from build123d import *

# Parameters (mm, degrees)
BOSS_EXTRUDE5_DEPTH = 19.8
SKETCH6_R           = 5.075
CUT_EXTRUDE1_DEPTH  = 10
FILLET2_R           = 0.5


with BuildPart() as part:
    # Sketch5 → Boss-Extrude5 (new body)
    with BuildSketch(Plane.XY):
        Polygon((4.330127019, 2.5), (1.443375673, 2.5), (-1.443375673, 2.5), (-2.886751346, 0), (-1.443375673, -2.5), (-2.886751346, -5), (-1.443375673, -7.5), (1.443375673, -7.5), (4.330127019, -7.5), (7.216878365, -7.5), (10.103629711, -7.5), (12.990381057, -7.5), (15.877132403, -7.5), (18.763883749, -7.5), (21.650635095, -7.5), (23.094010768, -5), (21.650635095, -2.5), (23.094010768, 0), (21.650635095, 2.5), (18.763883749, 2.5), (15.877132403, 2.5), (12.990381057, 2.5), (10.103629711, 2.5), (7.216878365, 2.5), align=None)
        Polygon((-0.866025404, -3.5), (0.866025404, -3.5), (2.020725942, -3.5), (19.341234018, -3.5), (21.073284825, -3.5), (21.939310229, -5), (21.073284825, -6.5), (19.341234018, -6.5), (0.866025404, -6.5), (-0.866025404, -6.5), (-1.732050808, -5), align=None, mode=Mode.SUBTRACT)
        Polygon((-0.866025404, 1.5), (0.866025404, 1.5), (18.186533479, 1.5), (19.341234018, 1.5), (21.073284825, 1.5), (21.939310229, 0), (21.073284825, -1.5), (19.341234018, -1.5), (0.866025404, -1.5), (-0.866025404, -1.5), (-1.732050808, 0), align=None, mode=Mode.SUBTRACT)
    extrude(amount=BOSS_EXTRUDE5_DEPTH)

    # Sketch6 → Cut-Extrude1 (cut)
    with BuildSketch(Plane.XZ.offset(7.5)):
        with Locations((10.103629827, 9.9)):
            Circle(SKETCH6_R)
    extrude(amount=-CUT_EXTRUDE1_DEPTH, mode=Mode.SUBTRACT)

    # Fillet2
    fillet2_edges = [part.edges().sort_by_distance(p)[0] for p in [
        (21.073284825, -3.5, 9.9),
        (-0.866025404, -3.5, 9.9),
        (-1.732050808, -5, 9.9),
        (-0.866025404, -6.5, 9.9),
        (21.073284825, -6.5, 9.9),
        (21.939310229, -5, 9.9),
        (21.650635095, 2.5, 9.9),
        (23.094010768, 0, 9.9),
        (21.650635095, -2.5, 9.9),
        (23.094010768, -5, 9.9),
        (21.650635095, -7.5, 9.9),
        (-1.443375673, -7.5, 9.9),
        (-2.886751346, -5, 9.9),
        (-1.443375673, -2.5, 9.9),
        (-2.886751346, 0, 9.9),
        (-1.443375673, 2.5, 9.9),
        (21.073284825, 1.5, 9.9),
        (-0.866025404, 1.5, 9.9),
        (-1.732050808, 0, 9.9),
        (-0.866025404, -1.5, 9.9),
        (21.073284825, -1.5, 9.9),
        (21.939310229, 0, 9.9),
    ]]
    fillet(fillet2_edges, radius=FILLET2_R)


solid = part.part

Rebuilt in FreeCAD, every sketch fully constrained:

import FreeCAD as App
import Part
import Sketcher
Q = App.Units.Quantity


def edges_at(feature, points):
    """Names of the edges that pass closest to the given points."""
    edges = feature.Shape.Edges
    near = lambda p: min(range(len(edges)), key=lambda i: edges[i].distToShape(Part.Vertex(*p))[0])
    return sorted({f"Edge{near(p) + 1}" for p in points})


def add_polygon(sketch, points):
    """Adds a closed chain of lines whose ends are joined by coincident constraints."""
    first, n = sketch.GeometryCount, len(points)
    for a, b in zip(points, points[1:] + points[:1]):
        sketch.addGeometry(Part.LineSegment(App.Vector(*a, 0), App.Vector(*b, 0)), False)
    for i in range(n):
        sketch.addConstraint(Sketcher.Constraint("Coincident", first + i, 2, first + (i + 1) % n, 1))

doc = App.newDocument("Part")
body = doc.addObject("PartDesign::Body", "Body")

sketch1 = body.newObject("Sketcher::SketchObject", "Sketch")
sketch1.AttachmentSupport = (doc.getObject("XY_Plane"), [""])
sketch1.MapMode = "FlatFace"
add_polygon(sketch1, [(-1.443376, 2.5), (-2.886751, 0), (-1.443376, -2.5), (-2.886751, -5), (-1.443376, -7.5), (21.650635, -7.5), (23.094011, -5), (21.650635, -2.5), (23.094011, 0), (21.650635, 2.5)])
add_polygon(sketch1, [(-1.732051, -5), (-0.866025, -3.5), (21.073285, -3.5), (21.93931, -5), (21.073285, -6.5), (-0.866025, -6.5)])
add_polygon(sketch1, [(-1.732051, 0), (-0.866025, 1.5), (21.073285, 1.5), (21.93931, 0), (21.073285, -1.5), (-0.866025, -1.5)])
sketch1.addConstraint([
    Sketcher.Constraint("Horizontal", 4),
    Sketcher.Constraint("Horizontal", 9),
    Sketcher.Constraint("Horizontal", 11),
    Sketcher.Constraint("Horizontal", 14),
    Sketcher.Constraint("Horizontal", 17),
    Sketcher.Constraint("Horizontal", 20),
    Sketcher.Constraint("Symmetric", 6, 2, 8, 2, -1),
    Sketcher.Constraint("Symmetric", 1, 2, 9, 2, -1),
    Sketcher.Constraint("Symmetric", 17, 2, 19, 2, -1),
    Sketcher.Constraint("PointOnObject", 0, 2, -1),
    Sketcher.Constraint("PointOnObject", 7, 2, -1),
    Sketcher.Constraint("PointOnObject", 18, 2, -1),
    Sketcher.Constraint("PointOnObject", 21, 2, -1),
    Sketcher.Constraint("Parallel", 0, 2),
    Sketcher.Constraint("Parallel", 1, 3),
    Sketcher.Constraint("Parallel", 2, 5),
    Sketcher.Constraint("Parallel", 3, 6),
    Sketcher.Constraint("Parallel", 5, 7),
    Sketcher.Constraint("Parallel", 7, 10),
    Sketcher.Constraint("Parallel", 8, 12),
    Sketcher.Constraint("Parallel", 10, 13),
    Sketcher.Constraint("Parallel", 12, 15),
    Sketcher.Constraint("Parallel", 13, 16),
    Sketcher.Constraint("Parallel", 15, 18),
    Sketcher.Constraint("Parallel", 18, 21),
    Sketcher.Constraint("Horizontal", 2, 2, 5, 2),
    Sketcher.Constraint("Horizontal", 5, 2, 12, 2),
    Sketcher.Constraint("Horizontal", 12, 2, 15, 2),
    Sketcher.Constraint("Vertical", 0, 2, 2, 2),
    Sketcher.Constraint("Vertical", 1, 2, 3, 2),
    Sketcher.Constraint("Vertical", 11, 2, 13, 2),
    Sketcher.Constraint("Vertical", 14, 2, 16, 2),
    Sketcher.Constraint("Vertical", 13, 2, 17, 2),
    Sketcher.Constraint("Vertical", 12, 2, 18, 2),
    Sketcher.Constraint("Angle", 0, Q("-120 deg")),
    Sketcher.Constraint("DistanceY", 2, 2, -1, 1, 5.0),
    Sketcher.Constraint("DistanceY", 10, 2, 1, 2, 1.0),
    Sketcher.Constraint("DistanceX", 4, 1, 4, 2, 23.094011),
    Sketcher.Constraint("DistanceX", 11, 1, 11, 2, 21.93931),
    Sketcher.Constraint("DistanceX", 12, 2, 5, 2, 1.154701),
    Sketcher.Constraint("DistanceX", 0, 2, -1, 1, 2.886751),
])
pad1 = body.newObject("PartDesign::Pad", "Pad")
pad1.Profile = sketch1
pad1.Length = 19.8

sketch2 = body.newObject("Sketcher::SketchObject", "Sketch001")
sketch2.AttachmentSupport = (doc.getObject("XZ_Plane"), [""])
sketch2.MapMode = "FlatFace"
sketch2.AttachmentOffset = App.Placement(App.Vector(0, 0, 7.5), App.Rotation())
sketch2.addGeometry(Part.Circle(App.Vector(10.10363, 9.9, 0), App.Vector(0, 0, 1), 5.075), False)
sketch2.addConstraint([
    Sketcher.Constraint("Diameter", 0, 10.15),
    Sketcher.Constraint("DistanceY", -1, 1, 0, 3, 9.9),
    Sketcher.Constraint("DistanceX", -1, 1, 0, 3, 10.10363),
])
pocket1 = body.newObject("PartDesign::Pocket", "Pocket")
pocket1.Profile = sketch2
pocket1.Length = 10
doc.recompute()

fillet = body.newObject("PartDesign::Fillet", "Fillet")
fillet.Base = (pocket1, edges_at(pocket1, [
    (21.073, -3.5, 9.9),
    (-0.866, -3.5, 9.9),
    (-1.732, -5, 9.9),
    (-0.866, -6.5, 9.9),
    (21.073, -6.5, 9.9),
    (21.939, -5, 9.9),
    (21.651, 2.5, 9.9),
    (23.094, 0, 9.9),
    (21.651, -2.5, 9.9),
    (23.094, -5, 9.9),
    (21.651, -7.5, 9.9),
    (-1.443, -7.5, 9.9),
    (-2.887, -5, 9.9),
    (-1.443, -2.5, 9.9),
    (-2.887, 0, 9.9),
    (-1.443, 2.5, 9.9),
    (21.073, 1.5, 9.9),
    (-0.866, 1.5, 9.9),
    (-1.732, 0, 9.9),
    (-0.866, -1.5, 9.9),
    (21.073, -1.5, 9.9),
    (21.939, 0, 9.9),
]))
fillet.Radius = 0.5

doc.recompute()
